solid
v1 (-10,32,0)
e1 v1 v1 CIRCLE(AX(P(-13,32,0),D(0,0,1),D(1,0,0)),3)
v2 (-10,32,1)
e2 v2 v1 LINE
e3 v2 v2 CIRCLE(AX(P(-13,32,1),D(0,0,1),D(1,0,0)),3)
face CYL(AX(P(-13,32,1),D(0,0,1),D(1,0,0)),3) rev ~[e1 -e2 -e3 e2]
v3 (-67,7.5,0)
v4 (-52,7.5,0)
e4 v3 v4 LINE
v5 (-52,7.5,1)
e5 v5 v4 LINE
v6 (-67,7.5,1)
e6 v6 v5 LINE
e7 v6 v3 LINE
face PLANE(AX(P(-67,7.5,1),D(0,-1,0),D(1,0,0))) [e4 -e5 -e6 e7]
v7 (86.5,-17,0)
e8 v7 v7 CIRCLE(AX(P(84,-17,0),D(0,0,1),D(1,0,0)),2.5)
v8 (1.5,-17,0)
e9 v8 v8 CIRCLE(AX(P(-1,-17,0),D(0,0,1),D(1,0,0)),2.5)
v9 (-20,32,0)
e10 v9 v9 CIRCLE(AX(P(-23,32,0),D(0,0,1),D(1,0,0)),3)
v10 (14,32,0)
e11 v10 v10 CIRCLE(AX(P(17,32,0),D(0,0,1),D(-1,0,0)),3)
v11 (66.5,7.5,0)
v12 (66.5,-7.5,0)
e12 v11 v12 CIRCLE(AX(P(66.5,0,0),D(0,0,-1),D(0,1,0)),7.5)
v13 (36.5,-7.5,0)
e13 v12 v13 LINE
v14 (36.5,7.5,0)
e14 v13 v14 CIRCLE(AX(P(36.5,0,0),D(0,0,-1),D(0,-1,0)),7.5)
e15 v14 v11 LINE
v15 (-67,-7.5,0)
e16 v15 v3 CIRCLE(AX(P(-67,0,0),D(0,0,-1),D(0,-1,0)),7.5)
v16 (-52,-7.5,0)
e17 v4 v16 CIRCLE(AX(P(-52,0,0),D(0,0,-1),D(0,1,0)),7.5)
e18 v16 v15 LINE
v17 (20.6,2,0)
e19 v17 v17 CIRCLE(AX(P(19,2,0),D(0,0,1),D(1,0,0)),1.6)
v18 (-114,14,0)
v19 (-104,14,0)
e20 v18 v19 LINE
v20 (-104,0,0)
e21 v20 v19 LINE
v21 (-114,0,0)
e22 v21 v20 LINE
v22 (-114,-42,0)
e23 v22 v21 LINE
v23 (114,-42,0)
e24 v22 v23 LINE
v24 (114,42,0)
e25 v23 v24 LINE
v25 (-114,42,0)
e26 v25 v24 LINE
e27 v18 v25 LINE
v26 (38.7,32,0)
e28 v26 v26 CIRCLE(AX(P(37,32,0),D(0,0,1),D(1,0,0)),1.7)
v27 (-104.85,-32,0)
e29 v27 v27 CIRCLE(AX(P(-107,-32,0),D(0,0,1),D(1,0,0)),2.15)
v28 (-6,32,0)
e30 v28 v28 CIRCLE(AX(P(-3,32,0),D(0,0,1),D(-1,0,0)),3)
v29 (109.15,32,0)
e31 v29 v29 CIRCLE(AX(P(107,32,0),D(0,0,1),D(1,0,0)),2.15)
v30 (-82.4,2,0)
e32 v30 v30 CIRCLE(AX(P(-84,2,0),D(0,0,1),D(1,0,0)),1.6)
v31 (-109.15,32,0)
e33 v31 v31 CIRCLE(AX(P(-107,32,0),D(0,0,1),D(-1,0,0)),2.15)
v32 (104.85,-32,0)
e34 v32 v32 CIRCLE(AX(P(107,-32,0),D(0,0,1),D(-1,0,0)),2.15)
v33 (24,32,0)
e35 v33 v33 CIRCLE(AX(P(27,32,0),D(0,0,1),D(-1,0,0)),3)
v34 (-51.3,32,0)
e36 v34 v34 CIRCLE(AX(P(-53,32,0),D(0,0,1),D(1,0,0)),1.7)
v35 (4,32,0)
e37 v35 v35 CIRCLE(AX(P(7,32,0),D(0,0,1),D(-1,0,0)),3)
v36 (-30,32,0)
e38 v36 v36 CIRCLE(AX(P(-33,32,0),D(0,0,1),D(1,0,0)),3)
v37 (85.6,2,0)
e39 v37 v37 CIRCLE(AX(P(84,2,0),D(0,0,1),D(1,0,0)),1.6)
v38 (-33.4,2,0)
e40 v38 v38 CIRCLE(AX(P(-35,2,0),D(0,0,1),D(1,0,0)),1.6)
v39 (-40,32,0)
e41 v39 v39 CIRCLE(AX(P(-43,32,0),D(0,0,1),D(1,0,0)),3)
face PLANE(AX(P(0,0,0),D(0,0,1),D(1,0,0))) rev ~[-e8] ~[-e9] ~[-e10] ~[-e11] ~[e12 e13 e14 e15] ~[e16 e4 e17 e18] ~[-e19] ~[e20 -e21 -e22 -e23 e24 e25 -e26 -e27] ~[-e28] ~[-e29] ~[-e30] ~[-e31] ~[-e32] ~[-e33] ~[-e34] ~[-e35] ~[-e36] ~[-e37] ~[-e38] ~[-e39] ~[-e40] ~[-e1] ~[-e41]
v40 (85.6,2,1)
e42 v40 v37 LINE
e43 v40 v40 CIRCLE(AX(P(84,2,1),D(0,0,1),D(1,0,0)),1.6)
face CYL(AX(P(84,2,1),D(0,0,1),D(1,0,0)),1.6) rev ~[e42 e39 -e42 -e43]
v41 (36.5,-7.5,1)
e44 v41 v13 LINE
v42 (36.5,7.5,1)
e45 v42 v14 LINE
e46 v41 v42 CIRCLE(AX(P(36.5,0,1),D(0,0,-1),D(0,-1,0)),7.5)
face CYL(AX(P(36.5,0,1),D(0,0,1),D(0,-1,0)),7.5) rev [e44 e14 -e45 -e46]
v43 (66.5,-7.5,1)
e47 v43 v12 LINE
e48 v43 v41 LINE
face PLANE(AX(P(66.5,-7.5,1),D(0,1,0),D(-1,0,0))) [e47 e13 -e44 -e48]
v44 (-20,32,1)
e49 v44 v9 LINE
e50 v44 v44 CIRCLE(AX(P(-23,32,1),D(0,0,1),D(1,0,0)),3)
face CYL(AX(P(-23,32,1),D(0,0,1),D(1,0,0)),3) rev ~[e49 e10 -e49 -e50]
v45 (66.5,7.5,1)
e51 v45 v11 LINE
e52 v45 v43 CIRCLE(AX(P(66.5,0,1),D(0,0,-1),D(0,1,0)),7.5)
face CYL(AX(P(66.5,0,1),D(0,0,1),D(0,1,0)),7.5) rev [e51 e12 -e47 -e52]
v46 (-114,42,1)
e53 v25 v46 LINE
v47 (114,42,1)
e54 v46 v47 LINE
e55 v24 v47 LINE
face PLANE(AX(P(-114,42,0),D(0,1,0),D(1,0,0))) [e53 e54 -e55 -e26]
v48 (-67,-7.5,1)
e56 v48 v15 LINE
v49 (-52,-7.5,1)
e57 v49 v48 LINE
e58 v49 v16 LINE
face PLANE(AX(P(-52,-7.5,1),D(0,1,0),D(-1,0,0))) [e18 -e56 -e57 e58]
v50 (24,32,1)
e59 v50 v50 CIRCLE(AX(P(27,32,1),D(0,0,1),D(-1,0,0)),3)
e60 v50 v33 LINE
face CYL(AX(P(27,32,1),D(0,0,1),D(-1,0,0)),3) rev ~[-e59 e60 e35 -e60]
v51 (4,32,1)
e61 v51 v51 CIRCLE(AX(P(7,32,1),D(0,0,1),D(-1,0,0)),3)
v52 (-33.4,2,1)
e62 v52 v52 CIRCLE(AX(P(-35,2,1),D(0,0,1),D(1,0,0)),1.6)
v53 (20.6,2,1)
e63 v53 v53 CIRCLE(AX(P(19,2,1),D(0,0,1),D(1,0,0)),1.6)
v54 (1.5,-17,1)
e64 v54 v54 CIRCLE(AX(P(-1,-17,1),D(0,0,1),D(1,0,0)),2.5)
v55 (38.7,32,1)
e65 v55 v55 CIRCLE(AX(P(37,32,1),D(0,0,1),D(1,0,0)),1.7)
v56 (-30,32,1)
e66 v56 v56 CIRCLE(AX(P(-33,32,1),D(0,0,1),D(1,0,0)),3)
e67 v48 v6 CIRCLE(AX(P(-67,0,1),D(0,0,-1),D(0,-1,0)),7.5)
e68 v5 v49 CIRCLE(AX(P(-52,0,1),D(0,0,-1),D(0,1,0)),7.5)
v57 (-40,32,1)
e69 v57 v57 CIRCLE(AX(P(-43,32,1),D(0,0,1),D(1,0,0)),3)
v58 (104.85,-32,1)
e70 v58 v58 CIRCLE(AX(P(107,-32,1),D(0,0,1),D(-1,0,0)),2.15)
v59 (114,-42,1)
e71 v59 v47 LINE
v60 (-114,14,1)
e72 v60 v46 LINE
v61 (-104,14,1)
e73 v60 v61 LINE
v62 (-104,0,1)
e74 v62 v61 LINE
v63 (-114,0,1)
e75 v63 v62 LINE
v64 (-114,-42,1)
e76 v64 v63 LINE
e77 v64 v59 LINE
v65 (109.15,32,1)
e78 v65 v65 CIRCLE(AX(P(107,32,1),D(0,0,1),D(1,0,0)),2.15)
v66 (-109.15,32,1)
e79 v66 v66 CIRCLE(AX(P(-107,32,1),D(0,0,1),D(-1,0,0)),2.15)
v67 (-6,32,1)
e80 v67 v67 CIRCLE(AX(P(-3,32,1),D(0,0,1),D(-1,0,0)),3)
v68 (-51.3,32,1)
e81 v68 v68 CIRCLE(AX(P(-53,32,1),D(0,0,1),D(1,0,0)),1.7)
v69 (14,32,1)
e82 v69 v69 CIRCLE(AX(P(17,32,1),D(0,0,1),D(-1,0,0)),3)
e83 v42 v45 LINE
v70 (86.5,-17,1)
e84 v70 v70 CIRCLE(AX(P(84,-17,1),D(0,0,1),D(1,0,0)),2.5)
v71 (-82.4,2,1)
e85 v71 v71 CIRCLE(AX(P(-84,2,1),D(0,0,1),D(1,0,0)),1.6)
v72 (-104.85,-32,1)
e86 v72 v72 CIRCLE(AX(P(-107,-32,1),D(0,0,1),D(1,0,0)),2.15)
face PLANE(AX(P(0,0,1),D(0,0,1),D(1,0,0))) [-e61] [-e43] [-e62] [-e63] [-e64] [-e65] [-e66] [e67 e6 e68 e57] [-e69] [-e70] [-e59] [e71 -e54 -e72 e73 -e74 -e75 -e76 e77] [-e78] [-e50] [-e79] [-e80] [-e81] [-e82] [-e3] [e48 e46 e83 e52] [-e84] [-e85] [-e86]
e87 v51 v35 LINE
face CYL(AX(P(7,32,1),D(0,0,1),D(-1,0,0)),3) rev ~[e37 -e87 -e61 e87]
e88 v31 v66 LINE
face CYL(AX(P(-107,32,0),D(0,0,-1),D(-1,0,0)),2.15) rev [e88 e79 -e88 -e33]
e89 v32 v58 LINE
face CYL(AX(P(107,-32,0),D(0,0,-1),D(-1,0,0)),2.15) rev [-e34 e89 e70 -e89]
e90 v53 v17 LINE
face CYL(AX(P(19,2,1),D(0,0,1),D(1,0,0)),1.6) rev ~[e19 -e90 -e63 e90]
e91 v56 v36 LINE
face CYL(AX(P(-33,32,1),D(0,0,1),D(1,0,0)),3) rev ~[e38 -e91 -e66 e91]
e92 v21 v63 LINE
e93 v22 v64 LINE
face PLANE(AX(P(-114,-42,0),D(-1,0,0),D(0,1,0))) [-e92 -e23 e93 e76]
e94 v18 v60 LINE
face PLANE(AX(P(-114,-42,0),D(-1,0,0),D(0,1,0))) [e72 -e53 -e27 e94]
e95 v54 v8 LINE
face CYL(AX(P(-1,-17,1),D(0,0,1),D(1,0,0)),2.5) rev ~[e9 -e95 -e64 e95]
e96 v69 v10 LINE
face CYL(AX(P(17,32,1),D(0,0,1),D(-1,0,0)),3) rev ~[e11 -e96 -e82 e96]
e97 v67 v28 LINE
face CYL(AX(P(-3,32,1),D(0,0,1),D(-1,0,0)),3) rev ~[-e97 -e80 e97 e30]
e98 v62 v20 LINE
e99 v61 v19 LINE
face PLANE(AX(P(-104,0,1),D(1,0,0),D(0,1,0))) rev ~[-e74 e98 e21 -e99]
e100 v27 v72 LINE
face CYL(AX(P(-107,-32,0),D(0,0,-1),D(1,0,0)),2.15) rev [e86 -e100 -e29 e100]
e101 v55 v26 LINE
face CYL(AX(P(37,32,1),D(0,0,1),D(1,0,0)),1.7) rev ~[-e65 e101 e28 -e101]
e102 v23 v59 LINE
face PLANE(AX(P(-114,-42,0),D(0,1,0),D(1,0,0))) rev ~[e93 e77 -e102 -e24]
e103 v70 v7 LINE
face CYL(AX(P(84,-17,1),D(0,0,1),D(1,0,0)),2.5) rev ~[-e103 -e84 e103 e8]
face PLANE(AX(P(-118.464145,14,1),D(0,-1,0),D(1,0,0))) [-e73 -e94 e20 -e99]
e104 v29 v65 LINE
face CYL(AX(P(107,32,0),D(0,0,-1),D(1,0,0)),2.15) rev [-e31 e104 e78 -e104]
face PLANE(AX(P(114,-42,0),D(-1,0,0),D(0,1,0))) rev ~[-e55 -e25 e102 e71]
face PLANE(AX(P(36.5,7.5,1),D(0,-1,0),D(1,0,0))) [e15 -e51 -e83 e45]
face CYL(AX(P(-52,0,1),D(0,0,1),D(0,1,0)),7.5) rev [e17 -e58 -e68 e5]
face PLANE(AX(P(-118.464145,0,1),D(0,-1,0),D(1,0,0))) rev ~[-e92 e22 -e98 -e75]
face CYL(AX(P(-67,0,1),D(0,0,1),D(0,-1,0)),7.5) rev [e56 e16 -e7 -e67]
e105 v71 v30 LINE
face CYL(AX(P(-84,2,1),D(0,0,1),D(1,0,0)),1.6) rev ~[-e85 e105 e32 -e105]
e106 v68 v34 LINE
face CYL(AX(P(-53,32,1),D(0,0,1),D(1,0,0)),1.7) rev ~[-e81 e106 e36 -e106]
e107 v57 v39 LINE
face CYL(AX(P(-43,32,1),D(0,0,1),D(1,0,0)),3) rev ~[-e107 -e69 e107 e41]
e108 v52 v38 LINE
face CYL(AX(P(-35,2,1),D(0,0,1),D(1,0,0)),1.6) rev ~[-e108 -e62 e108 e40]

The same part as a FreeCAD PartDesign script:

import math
import FreeCAD as App
import Part
import Sketcher
from FreeCAD import Vector
Q = App.Units.Quantity

doc = App.newDocument("Part")
body = doc.addObject("PartDesign::Body", "Body")

# Sketch on XY plane
sketch1 = body.newObject("Sketcher::SketchObject", "Sketch")
sketch1.AttachmentSupport = (doc.getObject("XY_Plane"), [""])
sketch1.MapMode = "FlatFace"
sketch1.addGeometry(Part.LineSegment(Vector(-114, 42, 0), Vector(-114, -42, 0)), False)
sketch1.addGeometry(Part.LineSegment(Vector(-114, -42, 0), Vector(114, -42, 0)), False)
sketch1.addGeometry(Part.LineSegment(Vector(114, -42, 0), Vector(114, 42, 0)), False)
sketch1.addGeometry(Part.LineSegment(Vector(114, 42, 0), Vector(-114, 42, 0)), False)
sketch1.addGeometry(Part.Circle(Vector(-107, -32, 0), Vector(0, 0, 1), 2.1), False)
sketch1.addGeometry(Part.Circle(Vector(107, -32, 0), Vector(0, 0, 1), 2.1), False)
sketch1.addGeometry(Part.Circle(Vector(-107, 32, 0), Vector(0, 0, 1), 2.1), False)
sketch1.addGeometry(Part.Circle(Vector(107, 32, 0), Vector(0, 0, 1), 2.1), False)
sketch1.addConstraint(Sketcher.Constraint("Coincident", 0, 2, 1, 1))
sketch1.addConstraint(Sketcher.Constraint("Coincident", 1, 2, 2, 1))
sketch1.addConstraint(Sketcher.Constraint("Coincident", 2, 2, 3, 1))
sketch1.addConstraint(Sketcher.Constraint("Coincident", 3, 2, 0, 1))
sketch1.addConstraint(Sketcher.Constraint("Vertical", 0))
sketch1.addConstraint(Sketcher.Constraint("Horizontal", 1))
sketch1.addConstraint(Sketcher.Constraint("Vertical", 2))
sketch1.addConstraint(Sketcher.Constraint("Horizontal", 3))
sketch1.addConstraint(Sketcher.Constraint("Equal", 4, 5))
sketch1.addConstraint(Sketcher.Constraint("Equal", 5, 6))
sketch1.addConstraint(Sketcher.Constraint("Equal", 6, 7))
sketch1.addConstraint(Sketcher.Constraint("Symmetric", 5, 3, 6, 3, -1, 1))
sketch1.addConstraint(Sketcher.Constraint("Symmetric", 4, 3, 7, 3, -1, 1))
sketch1.addConstraint(Sketcher.Constraint("Symmetric", 0, 2, 2, 2, -1, 1))
sketch1.addConstraint(Sketcher.Constraint("Symmetric", 4, 3, 5, 3, -2))
sketch1.addConstraint(Sketcher.Constraint("Diameter", 4, Q("4.3 mm")))
sketch1.addConstraint(Sketcher.Constraint("DistanceX", 1, 1, 1, 2, Q("228 mm")))
sketch1.addConstraint(Sketcher.Constraint("DistanceY", 0, 2, 0, 1, Q("84 mm")))
sketch1.addConstraint(Sketcher.Constraint("DistanceX", 4, 3, -1, 1, Q("107 mm")))
sketch1.addConstraint(Sketcher.Constraint("DistanceY", 4, 3, -1, 1, Q("32 mm")))
pad1 = body.newObject("PartDesign::Pad", "Pad")
pad1.Profile = sketch1
pad1.Length = 1

# Sketch on XY plane
sketch2 = body.newObject("Sketcher::SketchObject", "Sketch001")
sketch2.AttachmentSupport = (doc.getObject("XY_Plane"), [""])
sketch2.MapMode = "FlatFace"
sketch2.AttachmentOffset = App.Placement(Vector(0, 0, 1), App.Rotation())
sketch2.addGeometry(Part.Circle(Vector(19, 2, 0), Vector(0, 0, 1), 1.6), False)
sketch2.addGeometry(Part.Circle(Vector(84, 2, 0), Vector(0, 0, 1), 1.6), False)
sketch2.addGeometry(Part.Circle(Vector(-84, 2, 0), Vector(0, 0, 1), 1.6), False)
sketch2.addGeometry(Part.Circle(Vector(-35, 2, 0), Vector(0, 0, 1), 1.6), False)
sketch2.addGeometry(Part.LineSegment(Vector(66.5, 7.5, 0), Vector(36.5, 7.5, 0)), False)
sketch2.addGeometry(Part.ArcOfCircle(Part.Circle(Vector(36.5, 0, 0), Vector(0, 0, 1), 7.5), math.radians(90), math.radians(270)), False)
sketch2.addGeometry(Part.LineSegment(Vector(36.5, -7.5, 0), Vector(66.5, -7.5, 0)), False)
sketch2.addGeometry(Part.ArcOfCircle(Part.Circle(Vector(66.5, 0, 0), Vector(0, 0, 1), 7.5), math.radians(-90), math.radians(90)), False)
sketch2.addGeometry(Part.LineSegment(Vector(-52, 7.5, 0), Vector(-67, 7.5, 0)), False)
sketch2.addGeometry(Part.ArcOfCircle(Part.Circle(Vector(-67, 0, 0), Vector(0, 0, 1), 7.5), math.radians(90), math.radians(270)), False)
sketch2.addGeometry(Part.LineSegment(Vector(-67, -7.5, 0), Vector(-52, -7.5, 0)), False)
sketch2.addGeometry(Part.ArcOfCircle(Part.Circle(Vector(-52, 0, 0), Vector(0, 0, 1), 7.5), math.radians(-90), math.radians(90)), False)
sketch2.addGeometry(Part.LineSegment(Vector(-118.5, 14, 0), Vector(-118.5, 0, 0)), False)
sketch2.addGeometry(Part.LineSegment(Vector(-118.5, 0, 0), Vector(-104, 0, 0)), False)
sketch2.addGeometry(Part.LineSegment(Vector(-104, 0, 0), Vector(-104, 14, 0)), False)
sketch2.addGeometry(Part.LineSegment(Vector(-104, 14, 0), Vector(-118.5, 14, 0)), False)
sketch2.addConstraint(Sketcher.Constraint("Tangent", 4, 2, 5, 1))
sketch2.addConstraint(Sketcher.Constraint("Tangent", 5, 2, 6, 1))
sketch2.addConstraint(Sketcher.Constraint("Tangent", 6, 2, 7, 1))
sketch2.addConstraint(Sketcher.Constraint("Tangent", 7, 2, 4, 1))
sketch2.addConstraint(Sketcher.Constraint("Tangent", 8, 2, 9, 1))
sketch2.addConstraint(Sketcher.Constraint("Tangent", 9, 2, 10, 1))
sketch2.addConstraint(Sketcher.Constraint("Tangent", 10, 2, 11, 1))
sketch2.addConstraint(Sketcher.Constraint("Tangent", 11, 2, 8, 1))
sketch2.addConstraint(Sketcher.Constraint("Coincident", 12, 2, 13, 1))
sketch2.addConstraint(Sketcher.Constraint("Coincident", 13, 2, 14, 1))
sketch2.addConstraint(Sketcher.Constraint("Coincident", 14, 2, 15, 1))
sketch2.addConstraint(Sketcher.Constraint("Coincident", 15, 2, 12, 1))
sketch2.addConstraint(Sketcher.Constraint("Horizontal", 4))
sketch2.addConstraint(Sketcher.Constraint("Horizontal", 6))
sketch2.addConstraint(Sketcher.Constraint("Horizontal", 8))
sketch2.addConstraint(Sketcher.Constraint("Horizontal", 10))
sketch2.addConstraint(Sketcher.Constraint("Vertical", 12))
sketch2.addConstraint(Sketcher.Constraint("Horizontal", 13))
sketch2.addConstraint(Sketcher.Constraint("Vertical", 14))
sketch2.addConstraint(Sketcher.Constraint("Horizontal", 15))
sketch2.addConstraint(Sketcher.Constraint("Equal", 0, 1))
sketch2.addConstraint(Sketcher.Constraint("Equal", 1, 2))
sketch2.addConstraint(Sketcher.Constraint("Equal", 2, 3))
sketch2.addConstraint(Sketcher.Constraint("Equal", 7, 9))
sketch2.addConstraint(Sketcher.Constraint("Symmetric", 1, 3, 2, 3, -2))
sketch2.addConstraint(Sketcher.Constraint("PointOnObject", 5, 3, -1))
sketch2.addConstraint(Sketcher.Constraint("PointOnObject", 9, 3, -1))
sketch2.addConstraint(Sketcher.Constraint("PointOnObject", 12, 2, -1))
sketch2.addConstraint(Sketcher.Constraint("Horizontal", 0, 3, 1, 3))
sketch2.addConstraint(Sketcher.Constraint("Horizontal", 2, 3, 3, 3))
sketch2.addConstraint(Sketcher.Constraint("Diameter", 0, Q("3.2 mm")))
sketch2.addConstraint(Sketcher.Constraint("Radius", 5, Q("7.5 mm")))
sketch2.addConstraint(Sketcher.Constraint("DistanceX", 4, 2, 4, 1, Q("30 mm")))
sketch2.addConstraint(Sketcher.Constraint("DistanceX", 8, 2, 8, 1, Q("15 mm")))
sketch2.addConstraint(Sketcher.Constraint("DistanceY", 12, 2, 12, 1, Q("14 mm")))
sketch2.addConstraint(Sketcher.Constraint("DistanceX", -1, 1, 0, 3, Q("19 mm")))
sketch2.addConstraint(Sketcher.Constraint("DistanceY", -1, 1, 0, 3, Q("2 mm")))
sketch2.addConstraint(Sketcher.Constraint("DistanceX", -1, 1, 1, 3, Q("84 mm")))
sketch2.addConstraint(Sketcher.Constraint("DistanceX", 3, 3, -1, 1, Q("35 mm")))
sketch2.addConstraint(Sketcher.Constraint("DistanceX", 9, 3, -1, 1, Q("67 mm")))
sketch2.addConstraint(Sketcher.Constraint("DistanceX", 13, 2, -1, 1, Q("104 mm")))
sketch2.addConstraint(Sketcher.Constraint("DistanceX", -1, 1, 5, 3, Q("36.5 mm")))
sketch2.addConstraint(Sketcher.Constraint("DistanceX", 13, 1, 13, 2, Q("14.464145 mm")))
pocket1 = body.newObject("PartDesign::Pocket", "Pocket")
pocket1.Profile = sketch2
pocket1.Length = 1

# Sketch on XY plane
sketch3 = body.newObject("Sketcher::SketchObject", "Sketch002")
sketch3.AttachmentSupport = (doc.getObject("XY_Plane"), [""])
sketch3.MapMode = "FlatFace"
sketch3.AttachmentOffset = App.Placement(Vector(0, 0, 1), App.Rotation())
sketch3.addGeometry(Part.Circle(Vector(-53, 32, 0), Vector(0, 0, 1), 1.7), False)
sketch3.addGeometry(Part.Circle(Vector(37, 32, 0), Vector(0, 0, 1), 1.7), False)
sketch3.addGeometry(Part.Circle(Vector(-13, 32, 0), Vector(0, 0, 1), 3), False)
sketch3.addGeometry(Part.Circle(Vector(-23, 32, 0), Vector(0, 0, 1), 3), False)
sketch3.addGeometry(Part.Circle(Vector(-33, 32, 0), Vector(0, 0, 1), 3), False)
sketch3.addGeometry(Part.Circle(Vector(-43, 32, 0), Vector(0, 0, 1), 3), False)
sketch3.addGeometry(Part.Circle(Vector(-1, -17, 0), Vector(0, 0, 1), 2.5), False)
sketch3.addGeometry(Part.Circle(Vector(84, -17, 0), Vector(0, 0, 1), 2.5), False)
sketch3.addGeometry(Part.Circle(Vector(-3, 32, 0), Vector(0, 0, 1), 3), False)
sketch3.addGeometry(Part.Circle(Vector(7, 32, 0), Vector(0, 0, 1), 3), False)
sketch3.addGeometry(Part.Circle(Vector(17, 32, 0), Vector(0, 0, 1), 3), False)
sketch3.addGeometry(Part.Circle(Vector(27, 32, 0), Vector(0, 0, 1), 3), False)
sketch3.addConstraint(Sketcher.Constraint("Equal", 0, 1))
sketch3.addConstraint(Sketcher.Constraint("Equal", 2, 3))
sketch3.addConstraint(Sketcher.Constraint("Equal", 3, 4))
sketch3.addConstraint(Sketcher.Constraint("Equal", 4, 5))
sketch3.addConstraint(Sketcher.Constraint("Equal", 6, 7))
sketch3.addConstraint(Sketcher.Constraint("Equal", 5, 8))
sketch3.addConstraint(Sketcher.Constraint("Equal", 8, 9))
sketch3.addConstraint(Sketcher.Constraint("Equal", 9, 10))
sketch3.addConstraint(Sketcher.Constraint("Equal", 10, 11))
sketch3.addConstraint(Sketcher.Constraint("Horizontal", 0, 3, 1, 3))
sketch3.addConstraint(Sketcher.Constraint("Horizontal", 1, 3, 2, 3))
sketch3.addConstraint(Sketcher.Constraint("Horizontal", 2, 3, 3, 3))
sketch3.addConstraint(Sketcher.Constraint("Horizontal", 3, 3, 4, 3))
sketch3.addConstraint(Sketcher.Constraint("Horizontal", 4, 3, 5, 3))
sketch3.addConstraint(Sketcher.Constraint("Horizontal", 6, 3, 7, 3))
sketch3.addConstraint(Sketcher.Constraint("Horizontal", 5, 3, 8, 3))
sketch3.addConstraint(Sketcher.Constraint("Horizontal", 8, 3, 9, 3))
sketch3.addConstraint(Sketcher.Constraint("Horizontal", 9, 3, 10, 3))
sketch3.addConstraint(Sketcher.Constraint("Horizontal", 10, 3, 11, 3))
sketch3.addConstraint(Sketcher.Constraint("Diameter", 2, Q("6 mm")))
sketch3.addConstraint(Sketcher.Constraint("Diameter", 6, Q("5 mm")))
sketch3.addConstraint(Sketcher.Constraint("Diameter", 0, Q("3.4 mm")))
sketch3.addConstraint(Sketcher.Constraint("DistanceX", 0, 3, -1, 1, Q("53 mm")))
sketch3.addConstraint(Sketcher.Constraint("DistanceY", -1, 1, 0, 3, Q("32 mm")))
sketch3.addConstraint(Sketcher.Constraint("DistanceX", -1, 1, 1, 3, Q("37 mm")))
sketch3.addConstraint(Sketcher.Constraint("DistanceX", 2, 3, -1, 1, Q("13 mm")))
sketch3.addConstraint(Sketcher.Constraint("DistanceX", 3, 3, -1, 1, Q("23 mm")))
sketch3.addConstraint(Sketcher.Constraint("DistanceX", 4, 3, -1, 1, Q("33 mm")))
sketch3.addConstraint(Sketcher.Constraint("DistanceX", 5, 3, -1, 1, Q("43 mm")))
sketch3.addConstraint(Sketcher.Constraint("DistanceX", 6, 3, -1, 1, Q("1 mm")))
sketch3.addConstraint(Sketcher.Constraint("DistanceY", 6, 3, -1, 1, Q("17 mm")))
sketch3.addConstraint(Sketcher.Constraint("DistanceX", -1, 1, 7, 3, Q("84 mm")))
sketch3.addConstraint(Sketcher.Constraint("DistanceX", 8, 3, -1, 1, Q("3 mm")))
sketch3.addConstraint(Sketcher.Constraint("DistanceX", -1, 1, 9, 3, Q("7 mm")))
sketch3.addConstraint(Sketcher.Constraint("DistanceX", -1, 1, 10, 3, Q("17 mm")))
sketch3.addConstraint(Sketcher.Constraint("DistanceX", -1, 1, 11, 3, Q("27 mm")))
pocket2 = body.newObject("PartDesign::Pocket", "Pocket001")
pocket2.Profile = sketch3
pocket2.Length = 10

doc.recompute()
